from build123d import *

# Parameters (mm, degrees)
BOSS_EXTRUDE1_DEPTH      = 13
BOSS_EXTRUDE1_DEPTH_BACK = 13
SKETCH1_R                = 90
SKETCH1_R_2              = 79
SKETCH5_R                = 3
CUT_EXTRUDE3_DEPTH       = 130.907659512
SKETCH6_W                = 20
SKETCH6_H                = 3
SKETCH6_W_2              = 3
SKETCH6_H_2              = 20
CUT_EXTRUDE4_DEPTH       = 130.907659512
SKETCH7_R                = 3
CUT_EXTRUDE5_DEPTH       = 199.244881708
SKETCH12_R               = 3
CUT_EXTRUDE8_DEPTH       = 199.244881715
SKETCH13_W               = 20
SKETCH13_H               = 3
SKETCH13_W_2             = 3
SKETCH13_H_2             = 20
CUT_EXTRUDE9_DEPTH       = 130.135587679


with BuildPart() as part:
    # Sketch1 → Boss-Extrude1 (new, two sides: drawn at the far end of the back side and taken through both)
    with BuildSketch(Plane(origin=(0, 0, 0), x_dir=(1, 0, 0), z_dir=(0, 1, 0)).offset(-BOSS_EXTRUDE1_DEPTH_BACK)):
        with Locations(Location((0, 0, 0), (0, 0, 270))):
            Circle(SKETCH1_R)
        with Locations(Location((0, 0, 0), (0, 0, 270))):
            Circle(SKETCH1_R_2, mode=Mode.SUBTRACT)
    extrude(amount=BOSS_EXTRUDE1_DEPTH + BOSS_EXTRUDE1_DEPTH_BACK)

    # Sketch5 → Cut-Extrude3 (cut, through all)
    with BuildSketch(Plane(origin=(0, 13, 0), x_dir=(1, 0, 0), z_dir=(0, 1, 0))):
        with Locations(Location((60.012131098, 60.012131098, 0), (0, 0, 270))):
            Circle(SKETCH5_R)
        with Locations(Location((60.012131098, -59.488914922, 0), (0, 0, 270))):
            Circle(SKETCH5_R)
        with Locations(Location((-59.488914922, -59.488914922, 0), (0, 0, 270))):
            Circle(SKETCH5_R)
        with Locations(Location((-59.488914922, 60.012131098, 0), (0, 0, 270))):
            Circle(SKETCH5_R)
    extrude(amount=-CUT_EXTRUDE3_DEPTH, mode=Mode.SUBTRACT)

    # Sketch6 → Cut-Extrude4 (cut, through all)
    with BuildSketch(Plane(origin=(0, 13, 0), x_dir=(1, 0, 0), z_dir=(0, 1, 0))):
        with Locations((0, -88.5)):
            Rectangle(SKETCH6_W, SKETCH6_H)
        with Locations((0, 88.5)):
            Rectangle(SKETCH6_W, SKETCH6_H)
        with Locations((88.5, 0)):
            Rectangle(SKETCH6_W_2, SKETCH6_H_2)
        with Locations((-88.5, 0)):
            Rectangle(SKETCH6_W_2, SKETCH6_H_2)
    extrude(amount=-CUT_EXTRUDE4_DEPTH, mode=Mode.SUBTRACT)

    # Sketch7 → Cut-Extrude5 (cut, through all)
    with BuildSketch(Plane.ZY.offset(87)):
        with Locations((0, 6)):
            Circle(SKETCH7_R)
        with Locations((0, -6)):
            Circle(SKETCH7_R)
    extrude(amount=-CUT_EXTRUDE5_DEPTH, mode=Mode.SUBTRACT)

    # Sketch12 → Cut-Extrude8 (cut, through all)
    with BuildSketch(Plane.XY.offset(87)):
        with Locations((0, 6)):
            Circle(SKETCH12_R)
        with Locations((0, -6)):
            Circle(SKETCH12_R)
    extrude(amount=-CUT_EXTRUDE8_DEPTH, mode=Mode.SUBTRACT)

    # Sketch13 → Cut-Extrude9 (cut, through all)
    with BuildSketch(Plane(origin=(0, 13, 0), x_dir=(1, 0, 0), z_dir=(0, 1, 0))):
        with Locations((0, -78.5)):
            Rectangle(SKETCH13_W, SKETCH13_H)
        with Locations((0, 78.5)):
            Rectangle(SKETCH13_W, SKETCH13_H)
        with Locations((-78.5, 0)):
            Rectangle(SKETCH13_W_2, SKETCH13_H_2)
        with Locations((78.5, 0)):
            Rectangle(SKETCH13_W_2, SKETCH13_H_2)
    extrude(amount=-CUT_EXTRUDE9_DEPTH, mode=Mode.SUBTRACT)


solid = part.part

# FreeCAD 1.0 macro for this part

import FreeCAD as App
import Part
import Sketcher
from FreeCAD import Vector


def add_polygon(sketch, points):
    """Adds a closed chain of lines whose ends are joined by coincident constraints."""
    first, n = sketch.GeometryCount, len(points)
    for a, b in zip(points, points[1:] + points[:1]):
        sketch.addGeometry(Part.LineSegment(App.Vector(*a, 0), App.Vector(*b, 0)), False)
    for i in range(n):
        sketch.addConstraint(Sketcher.Constraint("Coincident", first + i, 2, first + (i + 1) % n, 1))

doc = App.newDocument("Part")
params = doc.addObject("Spreadsheet::Sheet", "Params")
for row, (alias, value) in enumerate([
    ("sketch1_diameter", "180 mm"),
    ("sketch1_diameter2", "158 mm"),
    ("pad1_length", "13 mm"),
    ("pad1_length2", "13 mm"),
    ("sketch2_diameter", "6 mm"),
    ("sketch3_width", "20 mm"),
    ("sketch3_width2", "3 mm"),
    ("sketch4_diameter", "6 mm"),
    ("sketch5_diameter", "6 mm"),
    ("sketch6_width", "20 mm"),
    ("sketch6_width2", "3 mm"),
], start=1):
    params.set(f"A{row}", alias)
    params.set(f"B{row}", "=" + value)
    params.setAlias(f"B{row}", alias)

body = doc.addObject("PartDesign::Body", "Body")

# Sketch on XZ plane
sketch1 = body.newObject("Sketcher::SketchObject", "Sketch")
sketch1.AttachmentSupport = (doc.getObject("XZ_Plane"), [""])
sketch1.MapMode = "FlatFace"
sketch1.addGeometry([
    Part.Circle(Vector(0, 0, 0), Vector(0, 0, 1), 90),
    Part.Circle(Vector(0, 0, 0), Vector(0, 0, 1), 79),
], False)
sketch1.addConstraint([
    Sketcher.Constraint("Coincident", 0, 3, -1, 1),
    Sketcher.Constraint("Coincident", 1, 3, -1, 1),
    Sketcher.Constraint("Diameter", 0, 180.0),
    Sketcher.Constraint("Diameter", 1, 158.0),
])
sketch1.setExpression("Constraints[2]", "Params.sketch1_diameter")
sketch1.setExpression("Constraints[3]", "Params.sketch1_diameter2")
pad1 = body.newObject("PartDesign::Pad", "Pad")
pad1.Profile = sketch1
pad1.Type = "TwoLengths"
pad1.setExpression("Length", "Params.pad1_length")
pad1.setExpression("Length2", "Params.pad1_length2")
pad1.Reversed = True

# Sketch on XZ plane
sketch2 = body.newObject("Sketcher::SketchObject", "Sketch001")
sketch2.AttachmentSupport = (doc.getObject("XZ_Plane"), [""])
sketch2.MapMode = "FlatFace"
sketch2.AttachmentOffset = App.Placement(Vector(0, 0, -13), App.Rotation())
sketch2.addGeometry([
    Part.Circle(Vector(60, -60, 0), Vector(0, 0, 1), 3),
    Part.Circle(Vector(60, 59.5, 0), Vector(0, 0, 1), 3),
    Part.Circle(Vector(-59.5, 59.5, 0), Vector(0, 0, 1), 3),
    Part.Circle(Vector(-59.5, -60, 0), Vector(0, 0, 1), 3),
], False)
sketch2.addConstraint([
    Sketcher.Constraint("Equal", 0, 1),
    Sketcher.Constraint("Equal", 1, 2),
    Sketcher.Constraint("Equal", 2, 3),
    Sketcher.Constraint("Horizontal", 1, 3, 2, 3),
    Sketcher.Constraint("Horizontal", 0, 3, 3, 3),
    Sketcher.Constraint("Vertical", 0, 3, 1, 3),
    Sketcher.Constraint("Vertical", 2, 3, 3, 3),
    Sketcher.Constraint("Diameter", 0, 6.0),
    Sketcher.Constraint("DistanceX", -1, 1, 0, 3, 60.012131),
    Sketcher.Constraint("DistanceY", 0, 3, -1, 1, 60.012131),
    Sketcher.Constraint("DistanceY", -1, 1, 1, 3, 59.488915),
    Sketcher.Constraint("DistanceX", 2, 3, -1, 1, 59.488915),
])
sketch2.setExpression("Constraints[7]", "Params.sketch2_diameter")
pocket1 = body.newObject("PartDesign::Pocket", "Pocket")
pocket1.Profile = sketch2
pocket1.Type = "ThroughAll"
pocket1.Reversed = True

# Sketch on XZ plane
sketch3 = body.newObject("Sketcher::SketchObject", "Sketch002")
sketch3.AttachmentSupport = (doc.getObject("XZ_Plane"), [""])
sketch3.MapMode = "FlatFace"
sketch3.AttachmentOffset = App.Placement(Vector(0, 0, -13), App.Rotation())
add_polygon(sketch3, [(-10, 87), (-10, 90), (10, 90), (10, 87)])  # lines 0-3
add_polygon(sketch3, [(-10, -90), (-10, -87), (10, -87), (10, -90)])  # lines 4-7
add_polygon(sketch3, [(87, -10), (87, 10), (90, 10), (90, -10)])  # lines 8-11
add_polygon(sketch3, [(-90, -10), (-90, 10), (-87, 10), (-87, -10)])  # lines 12-15
sketch3.addConstraint([
    Sketcher.Constraint("Vertical", 0),
    Sketcher.Constraint("Horizontal", 1),
    Sketcher.Constraint("Vertical", 2),
    Sketcher.Constraint("Horizontal", 3),
    Sketcher.Constraint("Vertical", 4),
    Sketcher.Constraint("Horizontal", 5),
    Sketcher.Constraint("Vertical", 6),
    Sketcher.Constraint("Horizontal", 7),
    Sketcher.Constraint("Vertical", 8),
    Sketcher.Constraint("Horizontal", 9),
    Sketcher.Constraint("Vertical", 10),
    Sketcher.Constraint("Horizontal", 11),
    Sketcher.Constraint("Vertical", 12),
    Sketcher.Constraint("Horizontal", 13),
    Sketcher.Constraint("Vertical", 14),
    Sketcher.Constraint("Horizontal", 15),
    Sketcher.Constraint("Symmetric", 2, 2, 4, 2, -1, 1),
    Sketcher.Constraint("Symmetric", 0, 2, 6, 2, -1, 1),
    Sketcher.Constraint("Symmetric", 10, 2, 12, 2, -1, 1),
    Sketcher.Constraint("Symmetric", 8, 2, 14, 2, -1, 1),
    Sketcher.Constraint("Horizontal", 9, 2, 12, 2),
    Sketcher.Constraint("Vertical", 3, 2, 4, 2),
    Sketcher.Constraint("Equal", 15, 0),
    Sketcher.Constraint("Equal", 7, 8),
    Sketcher.Constraint("DistanceX", 1, 1, 1, 2, 20.0),
    Sketcher.Constraint("DistanceX", 9, 1, 9, 2, 3.0),
    Sketcher.Constraint("DistanceY", -1, 1, 0, 2, 90.0),
    Sketcher.Constraint("DistanceX", -1, 1, 8, 2, 87.0),
])
sketch3.setExpression("Constraints[40]", "Params.sketch3_width")
sketch3.setExpression("Constraints[41]", "Params.sketch3_width2")
pocket2 = body.newObject("PartDesign::Pocket", "Pocket001")
pocket2.Profile = sketch3
pocket2.Type = "ThroughAll"
pocket2.Reversed = True

# Sketch on YZ plane
sketch4 = body.newObject("Sketcher::SketchObject", "Sketch003")
sketch4.AttachmentSupport = (doc.getObject("YZ_Plane"), [""])
sketch4.MapMode = "FlatFace"
sketch4.AttachmentOffset = App.Placement(Vector(0, 0, -87), App.Rotation())
sketch4.addGeometry([
    Part.Circle(Vector(6, 0, 0), Vector(0, 0, 1), 3),
    Part.Circle(Vector(-6, 0, 0), Vector(0, 0, 1), 3),
], False)
sketch4.addConstraint([
    Sketcher.Constraint("Equal", 0, 1),
    Sketcher.Constraint("Symmetric", 0, 3, 1, 3, -1, 1),
    Sketcher.Constraint("PointOnObject", 0, 3, -1),
    Sketcher.Constraint("Diameter", 0, 6.0),
    Sketcher.Constraint("DistanceX", -1, 1, 0, 3, 6.0),
])
sketch4.setExpression("Constraints[3]", "Params.sketch4_diameter")
pocket3 = body.newObject("PartDesign::Pocket", "Pocket002")
pocket3.Profile = sketch4
pocket3.Type = "ThroughAll"
pocket3.Reversed = True

# Sketch on XY plane
sketch5 = body.newObject("Sketcher::SketchObject", "Sketch004")
sketch5.AttachmentSupport = (doc.getObject("XY_Plane"), [""])
sketch5.MapMode = "FlatFace"
sketch5.AttachmentOffset = App.Placement(Vector(0, 0, 87), App.Rotation())
sketch5.addGeometry([
    Part.Circle(Vector(0, 6, 0), Vector(0, 0, 1), 3),
    Part.Circle(Vector(0, -6, 0), Vector(0, 0, 1), 3),
], False)
sketch5.addConstraint([
    Sketcher.Constraint("Equal", 0, 1),
    Sketcher.Constraint("Symmetric", 0, 3, 1, 3, -1, 1),
    Sketcher.Constraint("PointOnObject", 0, 3, -2),
    Sketcher.Constraint("Diameter", 0, 6.0),
    Sketcher.Constraint("DistanceY", -1, 1, 0, 3, 6.0),
])
sketch5.setExpression("Constraints[3]", "Params.sketch5_diameter")
pocket4 = body.newObject("PartDesign::Pocket", "Pocket003")
pocket4.Profile = sketch5
pocket4.Type = "ThroughAll"

# Sketch on XZ plane
sketch6 = body.newObject("Sketcher::SketchObject", "Sketch005")
sketch6.AttachmentSupport = (doc.getObject("XZ_Plane"), [""])
sketch6.MapMode = "FlatFace"
sketch6.AttachmentOffset = App.Placement(Vector(0, 0, -13), App.Rotation())
add_polygon(sketch6, [(-10, 77), (-10, 80), (10, 80), (10, 77)])  # lines 0-3
add_polygon(sketch6, [(-10, -80), (-10, -77), (10, -77), (10, -80)])  # lines 4-7
add_polygon(sketch6, [(-80, -10), (-80, 10), (-77, 10), (-77, -10)])  # lines 8-11
add_polygon(sketch6, [(77, -10), (77, 10), (80, 10), (80, -10)])  # lines 12-15
sketch6.addConstraint([
    Sketcher.Constraint("Vertical", 0),
    Sketcher.Constraint("Horizontal", 1),
    Sketcher.Constraint("Vertical", 2),
    Sketcher.Constraint("Horizontal", 3),
    Sketcher.Constraint("Vertical", 4),
    Sketcher.Constraint("Horizontal", 5),
    Sketcher.Constraint("Vertical", 6),
    Sketcher.Constraint("Horizontal", 7),
    Sketcher.Constraint("Vertical", 8),
    Sketcher.Constraint("Horizontal", 9),
    Sketcher.Constraint("Vertical", 10),
    Sketcher.Constraint("Horizontal", 11),
    Sketcher.Constraint("Vertical", 12),
    Sketcher.Constraint("Horizontal", 13),
    Sketcher.Constraint("Vertical", 14),
    Sketcher.Constraint("Horizontal", 15),
    Sketcher.Constraint("Symmetric", 2, 2, 4, 2, -1, 1),
    Sketcher.Constraint("Symmetric", 0, 2, 6, 2, -1, 1),
    Sketcher.Constraint("Symmetric", 10, 2, 12, 2, -1, 1),
    Sketcher.Constraint("Symmetric", 8, 2, 14, 2, -1, 1),
    Sketcher.Constraint("Horizontal", 9, 2, 12, 2),
    Sketcher.Constraint("Vertical", 3, 2, 4, 2),
    Sketcher.Constraint("Equal", 15, 0),
    Sketcher.Constraint("Equal", 7, 8),
    Sketcher.Constraint("DistanceX", 1, 1, 1, 2, 20.0),
    Sketcher.Constraint("DistanceX", 9, 1, 9, 2, 3.0),
    Sketcher.Constraint("DistanceY", -1, 1, 0, 2, 80.0),
    Sketcher.Constraint("DistanceX", 8, 2, -1, 1, 80.0),
])
sketch6.setExpression("Constraints[40]", "Params.sketch6_width")
sketch6.setExpression("Constraints[41]", "Params.sketch6_width2")
pocket5 = body.newObject("PartDesign::Pocket", "Pocket004")
pocket5.Profile = sketch6
pocket5.Type = "ThroughAll"
pocket5.Reversed = True

doc.recompute()
